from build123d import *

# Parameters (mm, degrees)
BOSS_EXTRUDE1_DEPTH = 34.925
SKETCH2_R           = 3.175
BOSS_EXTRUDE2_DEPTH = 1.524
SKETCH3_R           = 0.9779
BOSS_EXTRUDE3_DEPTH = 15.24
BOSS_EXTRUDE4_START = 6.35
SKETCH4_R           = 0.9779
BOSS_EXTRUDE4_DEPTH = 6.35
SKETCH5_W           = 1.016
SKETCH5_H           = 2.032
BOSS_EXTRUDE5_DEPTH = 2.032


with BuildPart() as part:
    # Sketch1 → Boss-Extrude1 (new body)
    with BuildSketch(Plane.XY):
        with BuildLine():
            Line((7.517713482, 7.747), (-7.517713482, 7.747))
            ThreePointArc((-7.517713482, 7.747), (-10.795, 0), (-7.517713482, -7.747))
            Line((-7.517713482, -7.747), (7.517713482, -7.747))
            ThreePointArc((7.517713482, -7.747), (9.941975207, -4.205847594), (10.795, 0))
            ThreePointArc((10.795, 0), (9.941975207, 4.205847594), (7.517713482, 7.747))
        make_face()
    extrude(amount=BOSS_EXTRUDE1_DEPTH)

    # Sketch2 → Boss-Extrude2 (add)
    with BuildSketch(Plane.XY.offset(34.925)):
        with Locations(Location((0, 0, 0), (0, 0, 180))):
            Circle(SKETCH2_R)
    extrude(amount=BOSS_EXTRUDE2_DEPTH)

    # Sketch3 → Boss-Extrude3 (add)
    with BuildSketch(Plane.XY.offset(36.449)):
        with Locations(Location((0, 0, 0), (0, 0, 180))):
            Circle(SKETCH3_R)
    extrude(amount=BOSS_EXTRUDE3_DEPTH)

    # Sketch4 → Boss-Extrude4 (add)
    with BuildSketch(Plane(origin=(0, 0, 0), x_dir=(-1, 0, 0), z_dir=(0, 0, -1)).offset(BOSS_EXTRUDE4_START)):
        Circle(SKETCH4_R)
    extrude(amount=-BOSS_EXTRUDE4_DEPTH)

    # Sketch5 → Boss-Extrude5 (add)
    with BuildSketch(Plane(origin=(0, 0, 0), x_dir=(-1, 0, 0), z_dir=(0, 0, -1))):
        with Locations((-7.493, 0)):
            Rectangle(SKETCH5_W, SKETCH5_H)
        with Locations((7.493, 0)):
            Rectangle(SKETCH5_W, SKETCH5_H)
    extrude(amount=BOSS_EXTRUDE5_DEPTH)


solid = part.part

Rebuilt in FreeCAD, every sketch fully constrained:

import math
import FreeCAD as App
import Part
import Sketcher
from FreeCAD import Vector
Q = App.Units.Quantity


def add_polygon(sketch, points):
    """Adds a closed chain of lines whose ends are joined by coincident constraints."""
    first, n = sketch.GeometryCount, len(points)
    for a, b in zip(points, points[1:] + points[:1]):
        sketch.addGeometry(Part.LineSegment(App.Vector(*a, 0), App.Vector(*b, 0)), False)
    for i in range(n):
        sketch.addConstraint(Sketcher.Constraint("Coincident", first + i, 2, first + (i + 1) % n, 1))

doc = App.newDocument("Part")
body = doc.addObject("PartDesign::Body", "Body")

# Sketch on XY plane
sketch1 = doc.addObject("Sketcher::SketchObject", "Sketch")
body.addObject(sketch1)
sketch1.AttachmentSupport = (doc.XY_Plane, [""])
sketch1.MapMode = "FlatFace"
sketch1.addGeometry([
    Part.LineSegment(Vector(7.517713, 7.747, 0), Vector(-7.517713, 7.747, 0)),  # 0
    Part.ArcOfCircle(Part.Circle(Vector(0, 0, 0), Vector(0, 0, 1), 10.795), math.radians(134.139443), math.radians(225.860557)),  # 1
    Part.LineSegment(Vector(-7.517713, -7.747, 0), Vector(7.517713, -7.747, 0)),  # 2
    Part.ArcOfCircle(Part.Circle(Vector(0, 0, 0), Vector(0, 0, 1), 10.795), math.radians(-45.860557), math.radians(0)),  # 3
    Part.ArcOfCircle(Part.Circle(Vector(0, 0, 0), Vector(0, 0, 1), 10.795), math.radians(0), math.radians(45.860557)),  # 4
], False)
sketch1.addConstraint([
    Sketcher.Constraint("Coincident", 0, 2, 1, 1),
    Sketcher.Constraint("Coincident", 1, 2, 2, 1),
    Sketcher.Constraint("Coincident", 2, 2, 3, 1),
    Sketcher.Constraint("Tangent", 3, 2, 4, 1),
    Sketcher.Constraint("Coincident", 4, 2, 0, 1),
    Sketcher.Constraint("Horizontal", 0),
    Sketcher.Constraint("Horizontal", 2),
    Sketcher.Constraint("Coincident", 1, 3, -1, 1),
    Sketcher.Constraint("Coincident", 3, 3, -1, 1),
    Sketcher.Constraint("Equal", 1, 3),
    Sketcher.Constraint("Equal", 3, 4),
    Sketcher.Constraint("PointOnObject", 3, 2, -1),
    Sketcher.Constraint("Vertical", 0, 2, 1, 2),
    Sketcher.Constraint("Radius", 1, Q("0.425 in")),
    Sketcher.Constraint("DistanceY", 1, 2, 0, 2, Q("0.61 in")),
])
pad1 = doc.addObject("PartDesign::Pad", "Pad")
body.addObject(pad1)
pad1.Profile = sketch1
pad1.Length = Q("1.375 in")

# Sketch on XY plane
sketch2 = doc.addObject("Sketcher::SketchObject", "Sketch001")
body.addObject(sketch2)
sketch2.AttachmentSupport = (doc.XY_Plane, [""])
sketch2.MapMode = "FlatFace"
sketch2.AttachmentOffset = App.Placement(Vector(0, 0, 1.375 * 25.4), App.Rotation())
sketch2.addGeometry(Part.Circle(Vector(0, 0, 0), Vector(0, 0, 1), 3.175), False)
sketch2.addConstraint([
    Sketcher.Constraint("Coincident", 0, 3, -1, 1),
    Sketcher.Constraint("Diameter", 0, Q("0.25 in")),
])
pad2 = doc.addObject("PartDesign::Pad", "Pad001")
body.addObject(pad2)
pad2.Profile = sketch2
pad2.Length = Q("0.06 in")

# Sketch on XY plane
sketch3 = doc.addObject("Sketcher::SketchObject", "Sketch002")
body.addObject(sketch3)
sketch3.AttachmentSupport = (doc.XY_Plane, [""])
sketch3.MapMode = "FlatFace"
sketch3.AttachmentOffset = App.Placement(Vector(0, 0, 1.435 * 25.4), App.Rotation())
sketch3.addGeometry(Part.Circle(Vector(0, 0, 0), Vector(0, 0, 1), 0.9779), False)
sketch3.addConstraint([
    Sketcher.Constraint("Coincident", 0, 3, -1, 1),
    Sketcher.Constraint("Diameter", 0, Q("0.077 in")),
])
pad3 = doc.addObject("PartDesign::Pad", "Pad002")
body.addObject(pad3)
pad3.Profile = sketch3
pad3.Length = Q("0.6 in")

# Sketch on XY plane
sketch4 = doc.addObject("Sketcher::SketchObject", "Sketch003")
body.addObject(sketch4)
sketch4.AttachmentSupport = (doc.XY_Plane, [""])
sketch4.MapMode = "FlatFace"
sketch4.AttachmentOffset = App.Placement(Vector(0, 0, -0.25 * 25.4), App.Rotation())
sketch4.addGeometry(Part.Circle(Vector(0, 0, 0), Vector(0, 0, 1), 0.9779), False)
sketch4.addConstraint([
    Sketcher.Constraint("Coincident", 0, 3, -1, 1),
    Sketcher.Constraint("Diameter", 0, Q("0.077 in")),
])
pad4 = doc.addObject("PartDesign::Pad", "Pad003")
body.addObject(pad4)
pad4.Profile = sketch4
pad4.Length = Q("0.25 in")

# Sketch on XY plane
sketch5 = doc.addObject("Sketcher::SketchObject", "Sketch004")
body.addObject(sketch5)
sketch5.AttachmentSupport = (doc.XY_Plane, [""])
sketch5.MapMode = "FlatFace"
add_polygon(sketch5, [(8.001, 1.016), (8.001, -1.016), (6.985, -1.016), (6.985, 1.016)])  # lines 0-3
add_polygon(sketch5, [(-6.985, 1.016), (-6.985, -1.016), (-8.001, -1.016), (-8.001, 1.016)])  # lines 4-7
sketch5.addConstraint([
    Sketcher.Constraint("Vertical", 0),
    Sketcher.Constraint("Horizontal", 1),
    Sketcher.Constraint("Vertical", 2),
    Sketcher.Constraint("Horizontal", 3),
    Sketcher.Constraint("Vertical", 4),
    Sketcher.Constraint("Horizontal", 5),
    Sketcher.Constraint("Vertical", 6),
    Sketcher.Constraint("Horizontal", 7),
    Sketcher.Constraint("Symmetric", 2, 2, 4, 2, -1, 1),
    Sketcher.Constraint("Symmetric", 0, 2, 6, 2, -1, 1),
    Sketcher.Constraint("Horizontal", 1, 2, 4, 2),
    Sketcher.Constraint("DistanceX", 1, 2, 1, 1, Q("0.04 in")),
    Sketcher.Constraint("DistanceY", 0, 2, 0, 1, Q("0.08 in")),
    Sketcher.Constraint("DistanceX", 4, 2, 1, 2, Q("0.55 in")),
])
pad5 = doc.addObject("PartDesign::Pad", "Pad004")
body.addObject(pad5)
pad5.Profile = sketch5
pad5.Length = Q("0.08 in")
pad5.Reversed = True

doc.recompute()
